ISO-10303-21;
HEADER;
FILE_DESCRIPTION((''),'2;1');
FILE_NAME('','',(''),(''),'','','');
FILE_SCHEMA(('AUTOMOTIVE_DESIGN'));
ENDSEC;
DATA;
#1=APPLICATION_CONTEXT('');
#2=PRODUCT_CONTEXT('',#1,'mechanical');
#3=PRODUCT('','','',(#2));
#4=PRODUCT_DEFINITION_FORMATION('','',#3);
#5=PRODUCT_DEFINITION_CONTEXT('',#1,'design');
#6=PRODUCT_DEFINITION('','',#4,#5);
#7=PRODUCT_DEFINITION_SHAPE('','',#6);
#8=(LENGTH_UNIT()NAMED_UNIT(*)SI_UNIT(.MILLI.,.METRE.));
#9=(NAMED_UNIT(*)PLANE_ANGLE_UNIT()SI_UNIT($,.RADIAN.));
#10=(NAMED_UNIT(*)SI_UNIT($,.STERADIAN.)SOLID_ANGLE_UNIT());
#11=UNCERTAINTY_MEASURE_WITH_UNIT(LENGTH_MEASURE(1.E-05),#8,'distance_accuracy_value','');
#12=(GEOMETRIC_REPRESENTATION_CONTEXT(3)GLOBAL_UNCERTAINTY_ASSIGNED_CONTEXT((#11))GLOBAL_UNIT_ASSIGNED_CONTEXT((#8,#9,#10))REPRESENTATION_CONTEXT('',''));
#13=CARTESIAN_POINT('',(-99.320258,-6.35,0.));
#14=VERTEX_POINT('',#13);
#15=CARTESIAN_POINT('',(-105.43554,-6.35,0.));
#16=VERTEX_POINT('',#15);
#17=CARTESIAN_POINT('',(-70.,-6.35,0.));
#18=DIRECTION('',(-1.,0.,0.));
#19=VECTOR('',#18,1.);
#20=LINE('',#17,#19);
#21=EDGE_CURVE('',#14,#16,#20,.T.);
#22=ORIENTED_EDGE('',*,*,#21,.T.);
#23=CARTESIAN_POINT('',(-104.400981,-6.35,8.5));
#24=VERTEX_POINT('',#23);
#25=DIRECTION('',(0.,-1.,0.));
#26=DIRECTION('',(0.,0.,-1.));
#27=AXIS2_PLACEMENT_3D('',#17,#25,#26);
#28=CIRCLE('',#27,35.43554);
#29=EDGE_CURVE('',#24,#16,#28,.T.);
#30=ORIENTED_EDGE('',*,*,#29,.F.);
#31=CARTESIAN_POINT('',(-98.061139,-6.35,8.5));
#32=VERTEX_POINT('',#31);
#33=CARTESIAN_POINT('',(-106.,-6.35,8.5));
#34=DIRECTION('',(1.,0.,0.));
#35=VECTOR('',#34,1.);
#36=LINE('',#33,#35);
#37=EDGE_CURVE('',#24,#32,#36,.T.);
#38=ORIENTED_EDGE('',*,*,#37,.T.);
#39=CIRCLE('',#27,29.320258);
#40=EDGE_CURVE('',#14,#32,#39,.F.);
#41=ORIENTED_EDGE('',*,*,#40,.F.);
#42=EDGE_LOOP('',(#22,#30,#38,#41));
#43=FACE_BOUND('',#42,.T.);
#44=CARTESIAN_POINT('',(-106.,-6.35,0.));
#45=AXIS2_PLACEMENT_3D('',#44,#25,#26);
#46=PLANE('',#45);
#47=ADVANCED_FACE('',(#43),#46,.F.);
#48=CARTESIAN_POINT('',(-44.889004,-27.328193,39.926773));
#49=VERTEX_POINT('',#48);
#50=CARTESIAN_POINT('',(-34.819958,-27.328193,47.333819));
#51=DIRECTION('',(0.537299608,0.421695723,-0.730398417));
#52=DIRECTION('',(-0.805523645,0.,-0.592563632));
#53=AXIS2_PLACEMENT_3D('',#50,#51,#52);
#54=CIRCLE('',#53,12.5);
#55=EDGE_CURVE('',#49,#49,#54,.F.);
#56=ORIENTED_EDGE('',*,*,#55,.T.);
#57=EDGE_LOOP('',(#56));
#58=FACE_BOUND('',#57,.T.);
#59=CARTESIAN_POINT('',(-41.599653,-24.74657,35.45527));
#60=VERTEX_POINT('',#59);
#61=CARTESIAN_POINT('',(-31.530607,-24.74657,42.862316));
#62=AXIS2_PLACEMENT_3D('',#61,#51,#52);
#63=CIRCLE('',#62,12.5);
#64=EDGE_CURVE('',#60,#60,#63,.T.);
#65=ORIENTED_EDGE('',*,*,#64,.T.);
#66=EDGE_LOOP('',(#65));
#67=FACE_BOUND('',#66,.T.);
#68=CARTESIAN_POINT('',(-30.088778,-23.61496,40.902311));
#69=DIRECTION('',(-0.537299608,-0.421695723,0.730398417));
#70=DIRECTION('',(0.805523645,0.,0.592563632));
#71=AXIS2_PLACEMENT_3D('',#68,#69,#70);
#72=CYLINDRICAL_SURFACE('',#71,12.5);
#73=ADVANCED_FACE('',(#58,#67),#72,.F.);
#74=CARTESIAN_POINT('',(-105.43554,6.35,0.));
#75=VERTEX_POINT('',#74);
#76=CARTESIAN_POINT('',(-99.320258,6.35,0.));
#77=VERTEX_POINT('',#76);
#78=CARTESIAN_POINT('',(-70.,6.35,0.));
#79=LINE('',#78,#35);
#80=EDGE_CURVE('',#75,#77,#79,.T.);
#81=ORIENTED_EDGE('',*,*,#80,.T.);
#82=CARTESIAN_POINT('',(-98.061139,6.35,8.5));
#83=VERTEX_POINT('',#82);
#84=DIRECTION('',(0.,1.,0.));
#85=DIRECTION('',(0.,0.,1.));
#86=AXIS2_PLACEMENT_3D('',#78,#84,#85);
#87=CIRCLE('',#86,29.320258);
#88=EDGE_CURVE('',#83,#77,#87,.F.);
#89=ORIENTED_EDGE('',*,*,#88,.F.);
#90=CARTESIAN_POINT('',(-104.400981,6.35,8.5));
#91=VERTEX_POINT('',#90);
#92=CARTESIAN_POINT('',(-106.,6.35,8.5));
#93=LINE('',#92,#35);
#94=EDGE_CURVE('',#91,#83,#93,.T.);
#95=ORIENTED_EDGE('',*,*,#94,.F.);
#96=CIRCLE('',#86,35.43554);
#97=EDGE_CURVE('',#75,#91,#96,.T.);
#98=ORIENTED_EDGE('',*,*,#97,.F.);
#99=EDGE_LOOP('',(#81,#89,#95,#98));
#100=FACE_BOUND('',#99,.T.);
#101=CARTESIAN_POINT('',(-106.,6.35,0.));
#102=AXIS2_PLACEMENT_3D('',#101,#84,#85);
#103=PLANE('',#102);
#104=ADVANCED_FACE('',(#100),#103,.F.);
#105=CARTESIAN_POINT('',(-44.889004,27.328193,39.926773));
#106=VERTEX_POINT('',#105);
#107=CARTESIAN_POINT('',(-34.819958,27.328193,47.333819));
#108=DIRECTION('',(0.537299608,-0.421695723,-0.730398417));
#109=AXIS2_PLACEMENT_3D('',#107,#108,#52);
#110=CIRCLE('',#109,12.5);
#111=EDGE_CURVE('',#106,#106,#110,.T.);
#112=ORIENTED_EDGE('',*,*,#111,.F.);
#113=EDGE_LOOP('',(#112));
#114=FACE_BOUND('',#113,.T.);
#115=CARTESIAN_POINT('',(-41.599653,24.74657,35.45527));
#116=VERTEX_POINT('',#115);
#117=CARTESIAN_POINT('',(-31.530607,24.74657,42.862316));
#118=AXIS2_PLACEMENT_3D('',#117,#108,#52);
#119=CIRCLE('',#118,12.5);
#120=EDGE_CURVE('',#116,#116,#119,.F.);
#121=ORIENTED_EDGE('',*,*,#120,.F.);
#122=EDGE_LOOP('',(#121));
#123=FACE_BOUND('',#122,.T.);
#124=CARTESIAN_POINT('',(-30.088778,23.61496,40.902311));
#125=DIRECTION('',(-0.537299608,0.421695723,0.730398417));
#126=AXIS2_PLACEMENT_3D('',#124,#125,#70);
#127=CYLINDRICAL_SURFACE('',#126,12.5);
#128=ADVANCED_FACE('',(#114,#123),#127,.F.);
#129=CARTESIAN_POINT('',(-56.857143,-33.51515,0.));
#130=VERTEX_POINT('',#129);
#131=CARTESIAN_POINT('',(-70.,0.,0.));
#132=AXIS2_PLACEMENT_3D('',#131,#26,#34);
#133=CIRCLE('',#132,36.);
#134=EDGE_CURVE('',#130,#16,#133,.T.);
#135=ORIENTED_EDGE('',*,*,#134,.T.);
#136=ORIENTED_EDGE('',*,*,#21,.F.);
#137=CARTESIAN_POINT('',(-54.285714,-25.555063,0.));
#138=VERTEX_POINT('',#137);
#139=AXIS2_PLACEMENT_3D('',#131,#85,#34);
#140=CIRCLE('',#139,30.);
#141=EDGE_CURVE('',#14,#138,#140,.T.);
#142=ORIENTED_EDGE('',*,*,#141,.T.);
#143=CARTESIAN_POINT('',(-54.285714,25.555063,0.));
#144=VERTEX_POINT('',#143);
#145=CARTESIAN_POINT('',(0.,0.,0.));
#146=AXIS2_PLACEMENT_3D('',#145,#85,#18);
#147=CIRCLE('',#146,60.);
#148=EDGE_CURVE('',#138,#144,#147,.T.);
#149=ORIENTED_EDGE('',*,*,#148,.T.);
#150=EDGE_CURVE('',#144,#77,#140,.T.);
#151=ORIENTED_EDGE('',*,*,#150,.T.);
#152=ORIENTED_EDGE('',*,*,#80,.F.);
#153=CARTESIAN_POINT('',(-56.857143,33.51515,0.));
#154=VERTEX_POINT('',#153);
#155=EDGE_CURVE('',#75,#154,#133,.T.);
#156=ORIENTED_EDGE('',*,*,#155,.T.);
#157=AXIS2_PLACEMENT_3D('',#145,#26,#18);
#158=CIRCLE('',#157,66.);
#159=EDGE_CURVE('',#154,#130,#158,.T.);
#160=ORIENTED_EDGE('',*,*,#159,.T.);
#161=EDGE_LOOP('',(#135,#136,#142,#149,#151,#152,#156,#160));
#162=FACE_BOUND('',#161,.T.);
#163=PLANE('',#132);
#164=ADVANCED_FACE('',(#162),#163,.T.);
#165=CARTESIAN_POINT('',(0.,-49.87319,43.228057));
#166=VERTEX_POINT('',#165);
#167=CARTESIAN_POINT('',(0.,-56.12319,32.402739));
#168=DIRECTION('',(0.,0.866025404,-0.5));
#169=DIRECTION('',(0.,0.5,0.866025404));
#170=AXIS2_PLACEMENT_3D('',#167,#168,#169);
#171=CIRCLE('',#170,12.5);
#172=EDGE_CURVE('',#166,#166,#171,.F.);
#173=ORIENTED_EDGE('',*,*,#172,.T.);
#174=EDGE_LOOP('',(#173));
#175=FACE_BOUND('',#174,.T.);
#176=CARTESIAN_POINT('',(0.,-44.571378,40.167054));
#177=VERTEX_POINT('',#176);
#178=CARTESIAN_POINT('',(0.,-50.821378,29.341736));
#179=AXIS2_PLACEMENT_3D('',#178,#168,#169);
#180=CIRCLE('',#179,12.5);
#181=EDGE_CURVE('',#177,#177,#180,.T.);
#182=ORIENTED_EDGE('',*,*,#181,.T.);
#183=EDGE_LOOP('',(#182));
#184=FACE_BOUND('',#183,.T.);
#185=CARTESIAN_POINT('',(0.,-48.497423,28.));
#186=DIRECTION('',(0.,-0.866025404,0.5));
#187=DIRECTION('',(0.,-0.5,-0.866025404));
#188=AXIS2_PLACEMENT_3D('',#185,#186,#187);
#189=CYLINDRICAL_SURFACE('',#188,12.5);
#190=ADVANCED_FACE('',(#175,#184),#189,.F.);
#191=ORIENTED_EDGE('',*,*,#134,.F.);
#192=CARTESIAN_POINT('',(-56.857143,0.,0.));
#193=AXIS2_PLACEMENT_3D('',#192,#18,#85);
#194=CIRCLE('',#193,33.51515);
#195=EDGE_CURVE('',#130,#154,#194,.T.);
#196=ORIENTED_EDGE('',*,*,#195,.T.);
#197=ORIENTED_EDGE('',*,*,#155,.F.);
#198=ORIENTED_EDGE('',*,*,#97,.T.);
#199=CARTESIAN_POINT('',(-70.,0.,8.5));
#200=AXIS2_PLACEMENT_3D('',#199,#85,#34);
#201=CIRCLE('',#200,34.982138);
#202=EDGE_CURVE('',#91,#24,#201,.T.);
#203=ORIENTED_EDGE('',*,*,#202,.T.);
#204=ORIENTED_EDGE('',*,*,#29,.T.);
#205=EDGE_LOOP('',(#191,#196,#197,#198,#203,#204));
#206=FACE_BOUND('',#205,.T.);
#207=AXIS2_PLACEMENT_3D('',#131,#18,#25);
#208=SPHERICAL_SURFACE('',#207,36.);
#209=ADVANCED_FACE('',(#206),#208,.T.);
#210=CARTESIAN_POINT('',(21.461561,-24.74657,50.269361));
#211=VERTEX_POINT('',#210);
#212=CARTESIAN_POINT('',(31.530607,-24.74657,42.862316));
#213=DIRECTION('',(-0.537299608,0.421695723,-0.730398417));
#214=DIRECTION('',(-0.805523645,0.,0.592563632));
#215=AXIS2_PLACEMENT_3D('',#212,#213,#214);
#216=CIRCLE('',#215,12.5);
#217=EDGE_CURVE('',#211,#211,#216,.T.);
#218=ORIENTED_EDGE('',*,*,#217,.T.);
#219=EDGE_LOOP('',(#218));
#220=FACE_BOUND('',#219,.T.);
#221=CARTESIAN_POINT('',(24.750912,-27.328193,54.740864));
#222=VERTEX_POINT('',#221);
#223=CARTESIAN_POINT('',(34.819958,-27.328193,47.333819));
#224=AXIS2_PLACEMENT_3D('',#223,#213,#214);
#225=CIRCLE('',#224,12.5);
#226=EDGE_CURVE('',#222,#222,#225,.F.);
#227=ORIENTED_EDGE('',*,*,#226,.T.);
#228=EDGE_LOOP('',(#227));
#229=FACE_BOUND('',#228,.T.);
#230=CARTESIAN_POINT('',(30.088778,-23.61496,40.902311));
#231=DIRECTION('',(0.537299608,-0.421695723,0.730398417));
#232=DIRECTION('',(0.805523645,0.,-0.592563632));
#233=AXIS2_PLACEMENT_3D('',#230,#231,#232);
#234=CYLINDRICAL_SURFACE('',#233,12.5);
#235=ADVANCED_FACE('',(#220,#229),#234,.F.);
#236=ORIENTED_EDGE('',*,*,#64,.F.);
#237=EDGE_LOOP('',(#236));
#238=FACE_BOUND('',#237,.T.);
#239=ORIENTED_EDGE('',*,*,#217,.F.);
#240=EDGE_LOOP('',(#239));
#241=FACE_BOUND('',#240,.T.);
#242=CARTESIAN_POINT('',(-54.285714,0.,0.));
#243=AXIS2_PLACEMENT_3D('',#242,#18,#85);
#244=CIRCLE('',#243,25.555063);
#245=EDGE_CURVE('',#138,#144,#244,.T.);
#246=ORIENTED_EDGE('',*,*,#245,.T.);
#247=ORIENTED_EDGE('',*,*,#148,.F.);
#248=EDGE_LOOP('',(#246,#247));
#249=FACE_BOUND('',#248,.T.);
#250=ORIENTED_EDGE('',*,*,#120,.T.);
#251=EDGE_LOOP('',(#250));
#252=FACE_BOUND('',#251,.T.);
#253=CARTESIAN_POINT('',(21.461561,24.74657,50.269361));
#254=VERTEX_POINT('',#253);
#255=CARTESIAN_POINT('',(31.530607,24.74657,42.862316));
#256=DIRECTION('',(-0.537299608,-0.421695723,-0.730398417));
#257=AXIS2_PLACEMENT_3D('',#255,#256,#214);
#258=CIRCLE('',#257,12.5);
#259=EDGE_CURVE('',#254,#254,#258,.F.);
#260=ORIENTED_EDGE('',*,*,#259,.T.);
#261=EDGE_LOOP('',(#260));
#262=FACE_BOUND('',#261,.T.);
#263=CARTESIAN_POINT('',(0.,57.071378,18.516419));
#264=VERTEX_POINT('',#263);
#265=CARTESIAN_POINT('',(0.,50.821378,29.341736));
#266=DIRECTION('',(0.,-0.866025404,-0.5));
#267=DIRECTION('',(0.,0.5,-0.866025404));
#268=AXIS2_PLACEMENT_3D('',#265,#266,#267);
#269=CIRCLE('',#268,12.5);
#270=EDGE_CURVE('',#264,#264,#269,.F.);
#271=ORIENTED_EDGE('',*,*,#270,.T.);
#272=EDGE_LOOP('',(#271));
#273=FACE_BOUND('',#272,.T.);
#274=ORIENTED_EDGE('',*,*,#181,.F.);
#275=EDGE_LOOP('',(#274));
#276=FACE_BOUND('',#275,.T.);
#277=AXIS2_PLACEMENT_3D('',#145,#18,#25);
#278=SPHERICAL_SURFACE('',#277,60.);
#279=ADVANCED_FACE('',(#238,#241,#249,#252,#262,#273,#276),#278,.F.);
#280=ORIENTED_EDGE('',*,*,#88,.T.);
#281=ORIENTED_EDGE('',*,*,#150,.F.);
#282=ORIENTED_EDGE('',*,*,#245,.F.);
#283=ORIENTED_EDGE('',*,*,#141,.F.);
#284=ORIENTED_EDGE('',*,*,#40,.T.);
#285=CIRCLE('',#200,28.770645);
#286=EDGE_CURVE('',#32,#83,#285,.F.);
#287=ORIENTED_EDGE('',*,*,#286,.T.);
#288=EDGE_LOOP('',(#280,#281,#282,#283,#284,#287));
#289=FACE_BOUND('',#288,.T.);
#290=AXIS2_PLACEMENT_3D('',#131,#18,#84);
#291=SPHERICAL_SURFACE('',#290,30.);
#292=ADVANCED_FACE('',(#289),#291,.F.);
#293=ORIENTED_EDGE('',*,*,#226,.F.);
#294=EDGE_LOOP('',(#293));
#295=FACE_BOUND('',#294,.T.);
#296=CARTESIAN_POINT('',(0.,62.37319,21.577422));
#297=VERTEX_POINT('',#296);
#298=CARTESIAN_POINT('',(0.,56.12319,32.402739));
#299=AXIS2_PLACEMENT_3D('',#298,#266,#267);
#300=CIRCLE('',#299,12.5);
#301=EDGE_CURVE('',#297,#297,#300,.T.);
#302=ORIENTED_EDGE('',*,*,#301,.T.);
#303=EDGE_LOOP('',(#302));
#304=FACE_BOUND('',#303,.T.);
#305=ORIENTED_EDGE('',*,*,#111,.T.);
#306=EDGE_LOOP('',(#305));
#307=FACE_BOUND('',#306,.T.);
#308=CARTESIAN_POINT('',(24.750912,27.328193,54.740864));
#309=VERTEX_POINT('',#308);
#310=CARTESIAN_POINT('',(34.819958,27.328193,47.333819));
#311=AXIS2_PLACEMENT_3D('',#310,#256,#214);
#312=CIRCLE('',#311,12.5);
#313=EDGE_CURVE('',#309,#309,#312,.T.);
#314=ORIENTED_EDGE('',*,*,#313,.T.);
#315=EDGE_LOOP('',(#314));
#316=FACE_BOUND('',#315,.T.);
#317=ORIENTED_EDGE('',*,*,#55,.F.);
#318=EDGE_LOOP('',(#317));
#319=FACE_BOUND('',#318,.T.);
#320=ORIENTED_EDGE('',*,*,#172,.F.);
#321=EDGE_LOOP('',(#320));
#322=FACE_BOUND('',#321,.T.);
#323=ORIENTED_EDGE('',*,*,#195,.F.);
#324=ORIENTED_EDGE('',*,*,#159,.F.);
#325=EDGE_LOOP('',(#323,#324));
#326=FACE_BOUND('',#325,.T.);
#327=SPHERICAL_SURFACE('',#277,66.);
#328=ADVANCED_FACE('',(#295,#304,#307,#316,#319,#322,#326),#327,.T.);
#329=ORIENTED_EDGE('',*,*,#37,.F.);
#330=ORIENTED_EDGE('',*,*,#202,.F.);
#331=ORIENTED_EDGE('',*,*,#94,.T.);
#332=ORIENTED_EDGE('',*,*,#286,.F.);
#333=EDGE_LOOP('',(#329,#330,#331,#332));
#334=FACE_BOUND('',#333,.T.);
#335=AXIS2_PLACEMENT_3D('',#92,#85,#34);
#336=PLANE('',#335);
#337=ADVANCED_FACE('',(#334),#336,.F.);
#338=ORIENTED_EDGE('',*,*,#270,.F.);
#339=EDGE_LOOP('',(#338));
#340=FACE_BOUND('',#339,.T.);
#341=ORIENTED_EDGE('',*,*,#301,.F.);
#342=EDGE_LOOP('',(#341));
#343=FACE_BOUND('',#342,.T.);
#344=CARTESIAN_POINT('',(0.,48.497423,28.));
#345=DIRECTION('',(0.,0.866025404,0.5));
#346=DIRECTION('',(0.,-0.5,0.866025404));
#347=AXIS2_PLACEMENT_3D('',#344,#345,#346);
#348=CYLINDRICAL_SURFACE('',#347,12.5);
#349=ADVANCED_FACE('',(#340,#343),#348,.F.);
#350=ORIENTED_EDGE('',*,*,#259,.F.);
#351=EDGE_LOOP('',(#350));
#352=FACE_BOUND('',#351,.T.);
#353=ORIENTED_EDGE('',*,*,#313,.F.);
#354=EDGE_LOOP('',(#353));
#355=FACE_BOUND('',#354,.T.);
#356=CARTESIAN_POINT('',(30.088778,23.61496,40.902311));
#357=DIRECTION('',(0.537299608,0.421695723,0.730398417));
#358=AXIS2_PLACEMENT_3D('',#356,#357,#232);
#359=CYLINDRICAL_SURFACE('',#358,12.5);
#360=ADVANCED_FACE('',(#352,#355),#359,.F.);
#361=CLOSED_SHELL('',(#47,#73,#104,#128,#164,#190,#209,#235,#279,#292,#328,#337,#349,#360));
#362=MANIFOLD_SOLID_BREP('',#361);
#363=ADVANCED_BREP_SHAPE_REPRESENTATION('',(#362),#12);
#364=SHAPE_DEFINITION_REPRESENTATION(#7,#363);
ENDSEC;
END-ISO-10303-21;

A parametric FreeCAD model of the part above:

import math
import FreeCAD as App
import Part
import Sketcher
from FreeCAD import Vector
Q = App.Units.Quantity

doc = App.newDocument("Part")
body = doc.addObject("PartDesign::Body", "Body")

sketch1 = body.newObject("Sketcher::SketchObject", "Sketch")
sketch1.AttachmentSupport = (doc.getObject("XY_Plane"), [""])
sketch1.MapMode = "FlatFace"
sketch1.addGeometry(Part.LineSegment(Vector(-106, 0, 0), Vector(-100, 0, 0)), False)
sketch1.addGeometry(Part.ArcOfCircle(Part.Circle(Vector(-70, 0, 0), Vector(0, 0, 1), 30), math.radians(58), math.radians(180)), False)
sketch1.addGeometry(Part.ArcOfCircle(Part.Circle(Vector(0, 0, 0), Vector(0, 0, 1), 60), math.radians(0), math.radians(155)), False)
sketch1.addGeometry(Part.LineSegment(Vector(60, 0, 0), Vector(66, 0, 0)), False)
sketch1.addGeometry(Part.ArcOfCircle(Part.Circle(Vector(0, 0, 0), Vector(0, 0, 1), 66), math.radians(0), math.radians(149)), False)
sketch1.addGeometry(Part.ArcOfCircle(Part.Circle(Vector(-70, 0, 0), Vector(0, 0, 1), 36), math.radians(69), math.radians(180)), False)
sketch1.addConstraint(Sketcher.Constraint("Coincident", 0, 2, 1, 2))
sketch1.addConstraint(Sketcher.Constraint("Coincident", 1, 1, 2, 2))
sketch1.addConstraint(Sketcher.Constraint("Coincident", 2, 1, 3, 1))
sketch1.addConstraint(Sketcher.Constraint("Coincident", 3, 2, 4, 1))
sketch1.addConstraint(Sketcher.Constraint("Coincident", 4, 2, 5, 1))
sketch1.addConstraint(Sketcher.Constraint("Coincident", 5, 2, 0, 1))
sketch1.addConstraint(Sketcher.Constraint("Horizontal", 0))
sketch1.addConstraint(Sketcher.Constraint("Horizontal", 3))
sketch1.addConstraint(Sketcher.Constraint("Coincident", 2, 3, -1, 1))
sketch1.addConstraint(Sketcher.Constraint("Coincident", 4, 3, -1, 1))
sketch1.addConstraint(Sketcher.Constraint("Coincident", 5, 3, 1, 3))
sketch1.addConstraint(Sketcher.Constraint("PointOnObject", 1, 3, -1))
sketch1.addConstraint(Sketcher.Constraint("PointOnObject", 0, 2, -1))
sketch1.addConstraint(Sketcher.Constraint("PointOnObject", 2, 1, -1))
sketch1.addConstraint(Sketcher.Constraint("Equal", 0, 3))
sketch1.addConstraint(Sketcher.Constraint("Radius", 1, Q("30 mm")))
sketch1.addConstraint(Sketcher.Constraint("Radius", 2, Q("60 mm")))
sketch1.addConstraint(Sketcher.Constraint("Radius", 4, Q("66 mm")))
sketch1.addConstraint(Sketcher.Constraint("DistanceX", 1, 3, -1, 1, Q("70 mm")))
revolution = body.newObject("PartDesign::Revolution", "Revolution")
revolution.Profile = sketch1
revolution.ReferenceAxis = (sketch1, ["H_Axis"])
revolution.Angle = 180

sketch2 = body.newObject("Sketcher::SketchObject", "Sketch001")
sketch2.Placement = App.Placement(Vector(-35.461774, 27.831918, 48.206296), App.Rotation(Vector(0.833827643, 0.395653782, 0.384953954), Vector(-0.12665146, 0.815861999, -0.564206173), Vector(-0.537299608, 0.421695723, 0.730398417), "ZXY"))
sketch2.addGeometry(Part.Circle(Vector(0, 0, 0), Vector(0, 0, 1), 12), False)
sketch2.addConstraint(Sketcher.Constraint("Coincident", 0, 3, -1, 1))
sketch2.addConstraint(Sketcher.Constraint("Diameter", 0, Q("25 mm")))
pocket1 = body.newObject("PartDesign::Pocket", "Pocket")
pocket1.Profile = sketch2
pocket1.Length = 10

sketch3 = body.newObject("Sketcher::SketchObject", "Sketch002")
sketch3.Placement = App.Placement(Vector(35.461774, 27.831918, 48.206296), App.Rotation(Vector(0.843391446, -0.268649804, -0.46531511), Vector(0, 0.866025403, -0.5), Vector(0.537299608, 0.421695723, 0.730398417), "ZXY"))
sketch3.addGeometry(Part.Circle(Vector(0, 0, 0), Vector(0, 0, 1), 12), False)
sketch3.addConstraint(Sketcher.Constraint("Coincident", 0, 3, -1, 1))
sketch3.addConstraint(Sketcher.Constraint("Diameter", 0, Q("25 mm")))
pocket2 = body.newObject("PartDesign::Pocket", "Pocket001")
pocket2.Profile = sketch3
pocket2.Length = 10

sketch4 = body.newObject("Sketcher::SketchObject", "Sketch003")
sketch4.Placement = App.Placement(Vector(0, 57.157677, 33), App.Rotation(Vector(1, 0, 0), Vector(0, 0.5, -0.866025404), Vector(0, 0.866025404, 0.5), "ZXY"))
sketch4.addGeometry(Part.Circle(Vector(0, 0, 0), Vector(0, 0, 1), 12), False)
sketch4.addConstraint(Sketcher.Constraint("Coincident", 0, 3, -1, 1))
sketch4.addConstraint(Sketcher.Constraint("Diameter", 0, Q("25 mm")))
pocket3 = body.newObject("PartDesign::Pocket", "Pocket002")
pocket3.Profile = sketch4
pocket3.Length = 10
doc.recompute()

mirrored = body.newObject("PartDesign::Mirrored", "Mirrored")
mirrored.Originals = [pocket1, pocket2, pocket3]
mirrored.MirrorPlane = (doc.getObject("XZ_Plane"), [""])
body.Tip = mirrored

sketch5 = body.newObject("Sketcher::SketchObject", "Sketch004")
sketch5.AttachmentSupport = (doc.getObject("YZ_Plane"), [""])
sketch5.MapMode = "FlatFace"
sketch5.addGeometry(Part.LineSegment(Vector(6, 8, 0), Vector(-6, 8, 0)), False)
sketch5.addGeometry(Part.LineSegment(Vector(-6, 8, 0), Vector(-6, 0, 0)), False)
sketch5.addGeometry(Part.LineSegment(Vector(-6, 0, 0), Vector(6, 0, 0)), False)
sketch5.addGeometry(Part.LineSegment(Vector(6, 0, 0), Vector(6, 8, 0)), False)
sketch5.addConstraint(Sketcher.Constraint("Coincident", 0, 2, 1, 1))
sketch5.addConstraint(Sketcher.Constraint("Coincident", 1, 2, 2, 1))
sketch5.addConstraint(Sketcher.Constraint("Coincident", 2, 2, 3, 1))
sketch5.addConstraint(Sketcher.Constraint("Coincident", 3, 2, 0, 1))
sketch5.addConstraint(Sketcher.Constraint("Horizontal", 0))
sketch5.addConstraint(Sketcher.Constraint("Vertical", 1))
sketch5.addConstraint(Sketcher.Constraint("Horizontal", 2))
sketch5.addConstraint(Sketcher.Constraint("Vertical", 3))
sketch5.addConstraint(Sketcher.Constraint("Symmetric", 1, 2, 2, 2, -1, 1))
sketch5.addConstraint(Sketcher.Constraint("DistanceX", 0, 2, 0, 1, Q("12.7 mm")))
sketch5.addConstraint(Sketcher.Constraint("DistanceY", 1, 2, 1, 1, Q("8.5 mm")))
pocket4 = body.newObject("PartDesign::Pocket", "Pocket003")
pocket4.Profile = sketch5
pocket4.Type = "ThroughAll"

doc.recompute()
